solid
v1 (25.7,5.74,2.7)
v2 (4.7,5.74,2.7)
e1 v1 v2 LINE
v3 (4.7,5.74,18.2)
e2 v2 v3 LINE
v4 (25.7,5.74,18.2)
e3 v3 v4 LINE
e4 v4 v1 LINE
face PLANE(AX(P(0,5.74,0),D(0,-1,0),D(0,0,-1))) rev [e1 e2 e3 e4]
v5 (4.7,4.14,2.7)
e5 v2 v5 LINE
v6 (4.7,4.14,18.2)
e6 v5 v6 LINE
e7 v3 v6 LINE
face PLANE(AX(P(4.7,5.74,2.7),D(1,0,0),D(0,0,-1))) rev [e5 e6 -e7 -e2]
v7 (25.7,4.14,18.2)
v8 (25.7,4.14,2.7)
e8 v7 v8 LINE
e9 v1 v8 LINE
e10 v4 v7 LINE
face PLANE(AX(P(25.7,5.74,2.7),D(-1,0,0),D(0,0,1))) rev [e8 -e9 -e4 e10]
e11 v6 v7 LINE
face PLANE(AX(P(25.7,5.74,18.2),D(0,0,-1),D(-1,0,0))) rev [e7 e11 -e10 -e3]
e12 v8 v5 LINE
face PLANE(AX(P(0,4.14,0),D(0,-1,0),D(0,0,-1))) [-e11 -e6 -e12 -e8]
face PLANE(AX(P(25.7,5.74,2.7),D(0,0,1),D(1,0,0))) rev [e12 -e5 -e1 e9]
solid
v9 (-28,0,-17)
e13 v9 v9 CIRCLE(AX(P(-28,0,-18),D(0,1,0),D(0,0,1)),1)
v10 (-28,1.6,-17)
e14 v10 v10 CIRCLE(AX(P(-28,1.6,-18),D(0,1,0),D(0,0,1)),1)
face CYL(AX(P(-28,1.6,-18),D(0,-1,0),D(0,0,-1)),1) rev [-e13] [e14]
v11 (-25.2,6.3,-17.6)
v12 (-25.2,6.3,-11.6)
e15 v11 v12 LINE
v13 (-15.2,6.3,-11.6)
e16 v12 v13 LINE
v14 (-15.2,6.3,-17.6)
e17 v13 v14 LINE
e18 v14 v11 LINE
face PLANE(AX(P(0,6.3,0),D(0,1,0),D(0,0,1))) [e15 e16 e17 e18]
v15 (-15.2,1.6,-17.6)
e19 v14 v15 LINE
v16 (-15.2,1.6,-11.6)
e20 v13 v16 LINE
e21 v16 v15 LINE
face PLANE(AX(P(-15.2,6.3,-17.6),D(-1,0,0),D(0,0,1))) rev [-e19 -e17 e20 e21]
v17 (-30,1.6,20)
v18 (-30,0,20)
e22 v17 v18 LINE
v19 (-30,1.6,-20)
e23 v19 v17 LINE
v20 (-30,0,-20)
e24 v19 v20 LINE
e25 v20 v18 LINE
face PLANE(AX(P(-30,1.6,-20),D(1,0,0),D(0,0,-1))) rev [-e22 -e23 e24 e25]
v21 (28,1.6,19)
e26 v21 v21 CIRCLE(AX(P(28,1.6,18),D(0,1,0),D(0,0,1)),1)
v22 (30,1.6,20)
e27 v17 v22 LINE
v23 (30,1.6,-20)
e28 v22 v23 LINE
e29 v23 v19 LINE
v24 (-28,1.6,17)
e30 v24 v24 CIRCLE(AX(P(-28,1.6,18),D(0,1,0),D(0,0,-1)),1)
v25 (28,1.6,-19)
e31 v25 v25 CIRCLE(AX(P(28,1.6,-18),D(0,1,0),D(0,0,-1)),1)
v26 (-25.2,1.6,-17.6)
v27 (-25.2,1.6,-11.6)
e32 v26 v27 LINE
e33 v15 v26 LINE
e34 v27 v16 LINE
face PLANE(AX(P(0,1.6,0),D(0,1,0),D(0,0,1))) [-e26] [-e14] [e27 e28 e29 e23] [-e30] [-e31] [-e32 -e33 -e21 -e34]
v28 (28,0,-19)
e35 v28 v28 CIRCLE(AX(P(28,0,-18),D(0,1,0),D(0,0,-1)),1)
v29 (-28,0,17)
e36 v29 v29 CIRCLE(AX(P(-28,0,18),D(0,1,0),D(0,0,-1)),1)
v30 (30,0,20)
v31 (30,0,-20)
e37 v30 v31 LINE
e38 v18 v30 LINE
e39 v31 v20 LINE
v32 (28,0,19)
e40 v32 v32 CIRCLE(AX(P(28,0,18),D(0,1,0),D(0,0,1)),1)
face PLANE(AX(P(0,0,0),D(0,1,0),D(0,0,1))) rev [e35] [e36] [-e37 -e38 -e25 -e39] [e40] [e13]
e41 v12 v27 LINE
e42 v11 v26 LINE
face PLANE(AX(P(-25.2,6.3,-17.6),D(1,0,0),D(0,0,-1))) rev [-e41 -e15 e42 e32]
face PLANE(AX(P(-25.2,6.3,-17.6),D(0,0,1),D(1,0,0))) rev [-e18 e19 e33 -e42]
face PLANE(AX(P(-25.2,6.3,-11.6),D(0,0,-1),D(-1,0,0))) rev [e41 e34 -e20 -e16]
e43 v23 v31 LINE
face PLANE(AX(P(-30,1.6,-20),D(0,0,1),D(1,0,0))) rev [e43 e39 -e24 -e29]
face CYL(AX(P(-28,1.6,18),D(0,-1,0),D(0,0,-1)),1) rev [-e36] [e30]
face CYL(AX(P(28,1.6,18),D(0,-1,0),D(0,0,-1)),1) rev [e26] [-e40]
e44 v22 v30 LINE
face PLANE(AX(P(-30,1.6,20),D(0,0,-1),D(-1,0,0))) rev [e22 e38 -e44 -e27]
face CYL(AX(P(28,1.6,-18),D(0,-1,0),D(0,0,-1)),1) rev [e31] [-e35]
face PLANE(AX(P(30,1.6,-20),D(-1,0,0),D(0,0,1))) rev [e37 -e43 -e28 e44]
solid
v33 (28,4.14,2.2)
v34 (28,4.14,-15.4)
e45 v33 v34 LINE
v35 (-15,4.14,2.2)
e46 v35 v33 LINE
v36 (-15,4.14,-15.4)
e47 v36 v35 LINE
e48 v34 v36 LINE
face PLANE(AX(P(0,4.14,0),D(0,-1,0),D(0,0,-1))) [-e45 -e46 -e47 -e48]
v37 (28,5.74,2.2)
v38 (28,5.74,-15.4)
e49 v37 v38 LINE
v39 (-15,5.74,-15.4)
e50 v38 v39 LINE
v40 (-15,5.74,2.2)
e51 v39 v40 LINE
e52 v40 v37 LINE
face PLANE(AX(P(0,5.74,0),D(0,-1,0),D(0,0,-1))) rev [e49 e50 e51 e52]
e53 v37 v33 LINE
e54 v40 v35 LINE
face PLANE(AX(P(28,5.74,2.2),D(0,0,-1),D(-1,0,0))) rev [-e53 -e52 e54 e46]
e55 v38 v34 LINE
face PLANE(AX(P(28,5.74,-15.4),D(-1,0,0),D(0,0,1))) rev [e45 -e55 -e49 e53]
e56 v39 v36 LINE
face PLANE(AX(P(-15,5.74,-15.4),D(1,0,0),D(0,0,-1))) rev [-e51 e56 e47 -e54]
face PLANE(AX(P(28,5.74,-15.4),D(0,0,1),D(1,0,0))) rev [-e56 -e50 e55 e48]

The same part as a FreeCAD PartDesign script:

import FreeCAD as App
import Part
import Sketcher
from FreeCAD import Vector


def add_polygon(sketch, points):
    """Adds a closed chain of lines whose ends are joined by coincident constraints."""
    first, n = sketch.GeometryCount, len(points)
    for a, b in zip(points, points[1:] + points[:1]):
        sketch.addGeometry(Part.LineSegment(App.Vector(*a, 0), App.Vector(*b, 0)), False)
    for i in range(n):
        sketch.addConstraint(Sketcher.Constraint("Coincident", first + i, 2, first + (i + 1) % n, 1))

doc = App.newDocument("Part")
body = doc.addObject("PartDesign::Body", "Body")

sketch1 = doc.addObject("Sketcher::SketchObject", "Sketch")
body.addObject(sketch1)
sketch1.AttachmentSupport = (doc.XZ_Plane, [""])
sketch1.MapMode = "FlatFace"
add_polygon(sketch1, [(-30, -20), (-30, 20), (30, 20), (30, -20)])
sketch1.addGeometry(Part.Circle(Vector(-28, 18, 0), Vector(0, 0, 1), 1), False)
sketch1.addGeometry(Part.Circle(Vector(28, 18, 0), Vector(0, 0, 1), 1), False)
sketch1.addGeometry(Part.Circle(Vector(-28, -18, 0), Vector(0, 0, 1), 1), False)
sketch1.addGeometry(Part.Circle(Vector(28, -18, 0), Vector(0, 0, 1), 1), False)
sketch1.addConstraint(Sketcher.Constraint("Vertical", 0))
sketch1.addConstraint(Sketcher.Constraint("Horizontal", 1))
sketch1.addConstraint(Sketcher.Constraint("Vertical", 2))
sketch1.addConstraint(Sketcher.Constraint("Horizontal", 3))
sketch1.addConstraint(Sketcher.Constraint("Equal", 4, 5))
sketch1.addConstraint(Sketcher.Constraint("Equal", 5, 6))
sketch1.addConstraint(Sketcher.Constraint("Equal", 6, 7))
sketch1.addConstraint(Sketcher.Constraint("Symmetric", 5, 3, 6, 3, -1, 1))
sketch1.addConstraint(Sketcher.Constraint("Symmetric", 4, 3, 7, 3, -1, 1))
sketch1.addConstraint(Sketcher.Constraint("Symmetric", 0, 2, 2, 2, -1, 1))
sketch1.addConstraint(Sketcher.Constraint("Symmetric", 4, 3, 5, 3, -2))
sketch1.addConstraint(Sketcher.Constraint("Diameter", 4, 2.0))
sketch1.addConstraint(Sketcher.Constraint("DistanceX", 1, 1, 1, 2, 60.0))
sketch1.addConstraint(Sketcher.Constraint("DistanceY", 0, 1, 0, 2, 40.0))
sketch1.addConstraint(Sketcher.Constraint("DistanceX", 4, 3, -1, 1, 28.0))
sketch1.addConstraint(Sketcher.Constraint("DistanceY", -1, 1, 4, 3, 18.0))
pad1 = doc.addObject("PartDesign::Pad", "Pad")
body.addObject(pad1)
pad1.Profile = sketch1
pad1.Length = 1.6
pad1.Reversed = True

sketch2 = doc.addObject("Sketcher::SketchObject", "Sketch001")
body.addObject(sketch2)
sketch2.AttachmentSupport = (doc.XZ_Plane, [""])
sketch2.MapMode = "FlatFace"
sketch2.AttachmentOffset = App.Placement(Vector(0, 0, -1.6), App.Rotation())
add_polygon(sketch2, [(-25, -18), (-25, -12), (-15, -12), (-15, -18)])
sketch2.addConstraint(Sketcher.Constraint("Vertical", 0))
sketch2.addConstraint(Sketcher.Constraint("Horizontal", 1))
sketch2.addConstraint(Sketcher.Constraint("Vertical", 2))
sketch2.addConstraint(Sketcher.Constraint("Horizontal", 3))
sketch2.addConstraint(Sketcher.Constraint("DistanceX", 1, 1, 1, 2, 10.0))
sketch2.addConstraint(Sketcher.Constraint("DistanceY", 0, 1, 0, 2, 6.0))
sketch2.addConstraint(Sketcher.Constraint("DistanceX", 0, 2, -1, 1, 25.2))
sketch2.addConstraint(Sketcher.Constraint("DistanceY", 0, 2, -1, 1, 11.6))
pad2 = doc.addObject("PartDesign::Pad", "Pad001")
body.addObject(pad2)
pad2.Profile = sketch2
pad2.Length = 4.7
pad2.Reversed = True
body2 = doc.addObject("PartDesign::Body", "Body001")

sketch3 = doc.addObject("Sketcher::SketchObject", "Sketch002")
body2.addObject(sketch3)
sketch3.AttachmentSupport = (doc.getObject("XZ_Plane001"), [""])
sketch3.MapMode = "FlatFace"
sketch3.AttachmentOffset = App.Placement(Vector(0, 0, -4.14), App.Rotation())
add_polygon(sketch3, [(-15, -15), (-15, 2), (28, 2), (28, -15)])
sketch3.addConstraint(Sketcher.Constraint("Vertical", 0))
sketch3.addConstraint(Sketcher.Constraint("Horizontal", 1))
sketch3.addConstraint(Sketcher.Constraint("Vertical", 2))
sketch3.addConstraint(Sketcher.Constraint("Horizontal", 3))
sketch3.addConstraint(Sketcher.Constraint("DistanceX", 1, 1, 1, 2, 43.0))
sketch3.addConstraint(Sketcher.Constraint("DistanceY", 0, 1, 0, 2, 17.6))
sketch3.addConstraint(Sketcher.Constraint("DistanceX", 0, 2, -1, 1, 15.0))
sketch3.addConstraint(Sketcher.Constraint("DistanceY", -1, 1, 0, 2, 2.2))
pad3 = doc.addObject("PartDesign::Pad", "Pad002")
body2.addObject(pad3)
pad3.Profile = sketch3
pad3.Length = 1.6
pad3.Reversed = True
body3 = doc.addObject("PartDesign::Body", "Body002")

sketch4 = doc.addObject("Sketcher::SketchObject", "Sketch003")
body3.addObject(sketch4)
sketch4.AttachmentSupport = (doc.getObject("XZ_Plane002"), [""])
sketch4.MapMode = "FlatFace"
sketch4.AttachmentOffset = App.Placement(Vector(0, 0, -4.14), App.Rotation())
add_polygon(sketch4, [(5, 3), (5, 18), (26, 18), (26, 3)])
sketch4.addConstraint(Sketcher.Constraint("Vertical", 0))
sketch4.addConstraint(Sketcher.Constraint("Horizontal", 1))
sketch4.addConstraint(Sketcher.Constraint("Vertical", 2))
sketch4.addConstraint(Sketcher.Constraint("Horizontal", 3))
sketch4.addConstraint(Sketcher.Constraint("DistanceX", 1, 1, 1, 2, 21.0))
sketch4.addConstraint(Sketcher.Constraint("DistanceY", 0, 1, 0, 2, 15.5))
sketch4.addConstraint(Sketcher.Constraint("DistanceX", -1, 1, 0, 2, 4.7))
sketch4.addConstraint(Sketcher.Constraint("DistanceY", -1, 1, 0, 2, 18.2))
pad4 = doc.addObject("PartDesign::Pad", "Pad003")
body3.addObject(pad4)
pad4.Profile = sketch4
pad4.Length = 1.6
pad4.Reversed = True

doc.recompute()
